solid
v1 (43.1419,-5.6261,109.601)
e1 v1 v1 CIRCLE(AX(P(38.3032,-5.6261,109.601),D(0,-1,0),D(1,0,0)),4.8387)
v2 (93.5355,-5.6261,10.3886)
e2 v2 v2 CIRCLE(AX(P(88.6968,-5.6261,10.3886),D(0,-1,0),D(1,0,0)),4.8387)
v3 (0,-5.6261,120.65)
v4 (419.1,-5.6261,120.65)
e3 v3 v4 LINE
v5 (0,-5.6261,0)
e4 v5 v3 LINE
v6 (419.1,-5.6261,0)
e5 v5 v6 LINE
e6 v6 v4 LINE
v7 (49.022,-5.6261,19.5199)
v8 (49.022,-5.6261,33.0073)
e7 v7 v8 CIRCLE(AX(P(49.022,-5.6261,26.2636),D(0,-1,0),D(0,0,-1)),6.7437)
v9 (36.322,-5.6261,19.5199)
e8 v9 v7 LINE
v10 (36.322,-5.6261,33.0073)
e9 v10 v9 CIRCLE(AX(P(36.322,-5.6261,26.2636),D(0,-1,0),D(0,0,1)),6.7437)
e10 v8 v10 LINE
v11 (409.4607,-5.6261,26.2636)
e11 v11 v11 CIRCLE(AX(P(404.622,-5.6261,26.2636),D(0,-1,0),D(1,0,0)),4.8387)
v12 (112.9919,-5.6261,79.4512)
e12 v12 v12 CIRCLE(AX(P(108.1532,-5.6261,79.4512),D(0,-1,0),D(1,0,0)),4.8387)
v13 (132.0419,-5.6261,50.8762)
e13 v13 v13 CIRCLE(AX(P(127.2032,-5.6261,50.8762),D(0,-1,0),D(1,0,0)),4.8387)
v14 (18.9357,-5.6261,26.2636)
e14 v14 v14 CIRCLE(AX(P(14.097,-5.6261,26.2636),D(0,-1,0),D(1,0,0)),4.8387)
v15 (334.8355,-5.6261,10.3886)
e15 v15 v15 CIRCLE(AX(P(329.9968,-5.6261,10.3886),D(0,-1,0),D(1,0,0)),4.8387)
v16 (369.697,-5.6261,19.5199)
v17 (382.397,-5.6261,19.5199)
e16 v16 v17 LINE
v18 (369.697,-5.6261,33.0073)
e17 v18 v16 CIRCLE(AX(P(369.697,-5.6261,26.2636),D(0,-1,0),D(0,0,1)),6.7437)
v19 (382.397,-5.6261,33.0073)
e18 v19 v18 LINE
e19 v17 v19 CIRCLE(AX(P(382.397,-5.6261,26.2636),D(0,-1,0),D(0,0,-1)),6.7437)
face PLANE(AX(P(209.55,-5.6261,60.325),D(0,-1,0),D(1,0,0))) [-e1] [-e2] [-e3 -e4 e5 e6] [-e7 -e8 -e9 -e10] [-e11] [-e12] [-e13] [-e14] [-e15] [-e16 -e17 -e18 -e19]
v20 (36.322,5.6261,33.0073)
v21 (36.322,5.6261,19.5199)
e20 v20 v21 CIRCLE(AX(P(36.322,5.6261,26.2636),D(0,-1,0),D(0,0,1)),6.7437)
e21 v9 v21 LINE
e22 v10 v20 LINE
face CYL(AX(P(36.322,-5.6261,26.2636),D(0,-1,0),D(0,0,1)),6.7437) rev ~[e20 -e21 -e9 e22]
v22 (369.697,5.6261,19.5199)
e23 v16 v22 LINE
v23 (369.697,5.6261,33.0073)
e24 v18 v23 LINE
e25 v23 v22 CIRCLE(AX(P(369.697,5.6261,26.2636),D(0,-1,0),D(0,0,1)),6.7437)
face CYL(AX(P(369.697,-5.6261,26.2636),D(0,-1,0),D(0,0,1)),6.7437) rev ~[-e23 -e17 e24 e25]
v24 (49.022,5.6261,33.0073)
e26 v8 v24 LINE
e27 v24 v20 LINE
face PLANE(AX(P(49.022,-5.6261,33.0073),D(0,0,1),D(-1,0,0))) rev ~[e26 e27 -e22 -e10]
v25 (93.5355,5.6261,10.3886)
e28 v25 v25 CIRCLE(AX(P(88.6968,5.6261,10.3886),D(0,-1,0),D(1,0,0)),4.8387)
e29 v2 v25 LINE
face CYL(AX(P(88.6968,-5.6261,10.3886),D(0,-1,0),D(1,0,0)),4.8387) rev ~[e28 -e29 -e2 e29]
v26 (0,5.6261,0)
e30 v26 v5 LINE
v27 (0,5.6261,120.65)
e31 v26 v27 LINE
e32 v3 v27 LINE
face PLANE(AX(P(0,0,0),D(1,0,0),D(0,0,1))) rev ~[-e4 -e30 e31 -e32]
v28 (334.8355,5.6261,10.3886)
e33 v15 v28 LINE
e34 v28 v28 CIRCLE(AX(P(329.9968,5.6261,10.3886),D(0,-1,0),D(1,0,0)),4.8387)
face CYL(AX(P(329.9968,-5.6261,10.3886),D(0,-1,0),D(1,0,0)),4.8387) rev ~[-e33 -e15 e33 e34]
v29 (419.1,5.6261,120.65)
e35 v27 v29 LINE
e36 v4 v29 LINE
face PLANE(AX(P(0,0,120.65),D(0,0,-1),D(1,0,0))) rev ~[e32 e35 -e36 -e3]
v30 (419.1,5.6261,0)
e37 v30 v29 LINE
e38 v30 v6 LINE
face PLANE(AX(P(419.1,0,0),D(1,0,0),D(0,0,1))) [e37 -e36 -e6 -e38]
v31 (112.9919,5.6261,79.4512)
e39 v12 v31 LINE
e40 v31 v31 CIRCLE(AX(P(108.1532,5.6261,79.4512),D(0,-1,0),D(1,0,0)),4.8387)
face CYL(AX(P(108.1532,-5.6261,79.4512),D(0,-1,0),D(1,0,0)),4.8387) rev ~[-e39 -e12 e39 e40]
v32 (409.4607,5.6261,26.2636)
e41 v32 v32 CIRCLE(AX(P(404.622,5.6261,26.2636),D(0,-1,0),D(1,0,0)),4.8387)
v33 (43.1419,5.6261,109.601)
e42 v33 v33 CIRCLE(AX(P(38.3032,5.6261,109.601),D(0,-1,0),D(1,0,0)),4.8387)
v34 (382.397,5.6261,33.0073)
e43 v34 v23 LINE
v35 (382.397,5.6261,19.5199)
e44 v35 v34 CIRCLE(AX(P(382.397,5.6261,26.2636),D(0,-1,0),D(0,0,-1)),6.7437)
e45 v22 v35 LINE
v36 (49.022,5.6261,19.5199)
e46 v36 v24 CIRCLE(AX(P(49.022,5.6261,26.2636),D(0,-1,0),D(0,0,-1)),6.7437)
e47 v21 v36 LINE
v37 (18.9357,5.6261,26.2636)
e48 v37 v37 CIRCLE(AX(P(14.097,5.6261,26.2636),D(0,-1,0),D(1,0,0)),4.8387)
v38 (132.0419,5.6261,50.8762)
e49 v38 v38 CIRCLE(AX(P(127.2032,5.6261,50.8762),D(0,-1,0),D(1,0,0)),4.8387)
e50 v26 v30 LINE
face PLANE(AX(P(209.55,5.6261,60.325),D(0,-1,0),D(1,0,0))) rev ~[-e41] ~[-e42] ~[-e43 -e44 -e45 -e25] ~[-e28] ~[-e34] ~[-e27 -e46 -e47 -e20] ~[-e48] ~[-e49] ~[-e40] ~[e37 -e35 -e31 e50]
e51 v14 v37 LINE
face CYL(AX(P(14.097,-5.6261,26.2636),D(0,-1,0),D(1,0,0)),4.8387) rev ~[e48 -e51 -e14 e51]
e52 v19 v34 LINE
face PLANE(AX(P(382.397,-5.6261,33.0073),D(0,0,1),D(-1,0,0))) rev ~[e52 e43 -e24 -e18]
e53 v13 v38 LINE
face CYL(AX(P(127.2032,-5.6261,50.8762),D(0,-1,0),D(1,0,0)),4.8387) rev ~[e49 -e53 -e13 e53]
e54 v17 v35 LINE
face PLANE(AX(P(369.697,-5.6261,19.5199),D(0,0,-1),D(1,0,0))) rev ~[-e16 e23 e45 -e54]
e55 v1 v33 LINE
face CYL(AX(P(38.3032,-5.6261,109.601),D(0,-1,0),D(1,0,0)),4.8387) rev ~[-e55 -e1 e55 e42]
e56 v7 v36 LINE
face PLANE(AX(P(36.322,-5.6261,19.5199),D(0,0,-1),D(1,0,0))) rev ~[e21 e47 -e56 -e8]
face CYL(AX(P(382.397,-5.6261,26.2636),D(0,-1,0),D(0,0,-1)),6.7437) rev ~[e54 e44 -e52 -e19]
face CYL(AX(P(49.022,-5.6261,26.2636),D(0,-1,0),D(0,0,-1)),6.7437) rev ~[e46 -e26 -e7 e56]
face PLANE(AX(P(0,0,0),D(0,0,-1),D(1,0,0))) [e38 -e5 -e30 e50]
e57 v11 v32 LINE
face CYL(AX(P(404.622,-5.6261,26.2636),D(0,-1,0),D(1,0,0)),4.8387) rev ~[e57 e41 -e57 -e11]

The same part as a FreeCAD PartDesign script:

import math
import FreeCAD as App
import Part
import Sketcher
Q = App.Units.Quantity

doc = App.newDocument("Part")
params = doc.addObject("Spreadsheet::Sheet", "Params")
for row, (alias, value) in enumerate([
    ("sketch1_width", "16.5 in"),
    ("sketch1_height", "4.75 in"),
    ("pad1_length", "0.443 in"),
    ("sketch2_diameter", "0.381 in"),
    ("sketch3_width", "0.5 in"),
], start=1):
    params.set(f"A{row}", alias)
    params.set(f"B{row}", "=" + value)
    params.setAlias(f"B{row}", alias)

body = doc.addObject("PartDesign::Body", "Body")

sketch1 = doc.addObject("Sketcher::SketchObject", "Sketch")
body.addObject(sketch1)
sketch1.AttachmentSupport = (doc.XZ_Plane, [""])
sketch1.MapMode = "FlatFace"
sketch1.addGeometry([
    Part.LineSegment(App.Vector(0, 121, 0), App.Vector(0, 0, 0)),
    Part.LineSegment(App.Vector(0, 0, 0), App.Vector(419, 0, 0)),
    Part.LineSegment(App.Vector(419, 0, 0), App.Vector(419, 121, 0)),
    Part.LineSegment(App.Vector(419, 121, 0), App.Vector(0, 121, 0)),
], False)
sketch1.addConstraint([
    Sketcher.Constraint("Coincident", 0, 2, 1, 1),
    Sketcher.Constraint("Coincident", 1, 2, 2, 1),
    Sketcher.Constraint("Coincident", 2, 2, 3, 1),
    Sketcher.Constraint("Coincident", 3, 2, 0, 1),
    Sketcher.Constraint("Vertical", 0),
    Sketcher.Constraint("Horizontal", 1),
    Sketcher.Constraint("Vertical", 2),
    Sketcher.Constraint("Horizontal", 3),
    Sketcher.Constraint("Coincident", 0, 2, -1, 1),
    Sketcher.Constraint("DistanceX", 1, 1, 1, 2, Q("16.5 in")),
    Sketcher.Constraint("DistanceY", 0, 2, 0, 1, Q("4.75 in")),
])
sketch1.setExpression("Constraints[9]", "Params.sketch1_width")
sketch1.setExpression("Constraints[10]", "Params.sketch1_height")
pad1 = doc.addObject("PartDesign::Pad", "Pad")
body.addObject(pad1)
pad1.Profile = sketch1
pad1.setExpression("Length", "Params.pad1_length")
pad1.Midplane = True

sketch2 = doc.addObject("Sketcher::SketchObject", "Sketch001")
body.addObject(sketch2)
sketch2.AttachmentSupport = (doc.XZ_Plane, [""])
sketch2.MapMode = "FlatFace"
sketch2.AttachmentOffset = App.Placement(App.Vector(0, 0, 0.2215 * 25.4), App.Rotation())
sketch2.addGeometry([
    Part.Circle(App.Vector(14.1, 26.3, 0), App.Vector(0, 0, 1), 4.8),
    Part.Circle(App.Vector(38.3, 109.6, 0), App.Vector(0, 0, 1), 4.8),
    Part.Circle(App.Vector(108.2, 79.5, 0), App.Vector(0, 0, 1), 4.8),
    Part.Circle(App.Vector(330, 10.4, 0), App.Vector(0, 0, 1), 4.8),
    Part.Circle(App.Vector(88.7, 10.4, 0), App.Vector(0, 0, 1), 4.8),
    Part.Circle(App.Vector(127.2, 50.9, 0), App.Vector(0, 0, 1), 4.8),
    Part.Circle(App.Vector(404.6, 26.3, 0), App.Vector(0, 0, 1), 4.8),
], False)
sketch2.addConstraint([
    Sketcher.Constraint("Equal", 0, 1),
    Sketcher.Constraint("Equal", 1, 2),
    Sketcher.Constraint("Equal", 2, 3),
    Sketcher.Constraint("Equal", 3, 4),
    Sketcher.Constraint("Equal", 4, 5),
    Sketcher.Constraint("Equal", 5, 6),
    Sketcher.Constraint("Horizontal", 3, 3, 4, 3),
    Sketcher.Constraint("Horizontal", 0, 3, 6, 3),
    Sketcher.Constraint("Diameter", 0, Q("0.381 in")),
    Sketcher.Constraint("DistanceX", 4, 3, 3, 3, Q("9.5 in")),
    Sketcher.Constraint("DistanceX", 1, 3, 5, 3, Q("3.5 in")),
    Sketcher.Constraint("DistanceX", -1, 1, 6, 3, Q("15.93 in")),
    Sketcher.Constraint("DistanceX", 1, 3, 2, 3, Q("2.75 in")),
    Sketcher.Constraint("DistanceX", -1, 1, 0, 3, Q("0.555 in")),
    Sketcher.Constraint("DistanceY", -1, 1, 0, 3, Q("1.034 in")),
    Sketcher.Constraint("DistanceX", -1, 1, 1, 3, Q("1.508 in")),
    Sketcher.Constraint("DistanceY", -1, 1, 1, 3, Q("4.315 in")),
    Sketcher.Constraint("DistanceY", -1, 1, 2, 3, Q("3.128 in")),
    Sketcher.Constraint("DistanceX", -1, 1, 3, 3, Q("12.992 in")),
    Sketcher.Constraint("DistanceY", -1, 1, 3, 3, Q("0.409 in")),
    Sketcher.Constraint("DistanceY", -1, 1, 5, 3, Q("2.003 in")),
])
sketch2.setExpression("Constraints[8]", "Params.sketch2_diameter")
pocket1 = doc.addObject("PartDesign::Pocket", "Pocket")
body.addObject(pocket1)
pocket1.Profile = sketch2
pocket1.Type = "ThroughAll"

sketch3 = doc.addObject("Sketcher::SketchObject", "Sketch002")
body.addObject(sketch3)
sketch3.AttachmentSupport = (doc.XZ_Plane, [""])
sketch3.MapMode = "FlatFace"
sketch3.AttachmentOffset = App.Placement(App.Vector(0, 0, 0.2215 * 25.4), App.Rotation())
sketch3.addGeometry([
    Part.LineSegment(App.Vector(49, 33, 0), App.Vector(36, 33, 0)),
    Part.ArcOfCircle(Part.Circle(App.Vector(36, 26, 0), App.Vector(0, 0, 1), 7), math.radians(90), math.radians(270)),
    Part.LineSegment(App.Vector(36, 20, 0), App.Vector(49, 20, 0)),
    Part.ArcOfCircle(Part.Circle(App.Vector(49, 26, 0), App.Vector(0, 0, 1), 7), math.radians(-90), math.radians(90)),
    Part.LineSegment(App.Vector(382, 33, 0), App.Vector(370, 33, 0)),
    Part.ArcOfCircle(Part.Circle(App.Vector(370, 26, 0), App.Vector(0, 0, 1), 7), math.radians(90), math.radians(270)),
    Part.LineSegment(App.Vector(370, 20, 0), App.Vector(382, 20, 0)),
    Part.ArcOfCircle(Part.Circle(App.Vector(382, 26, 0), App.Vector(0, 0, 1), 7), math.radians(-90), math.radians(90)),
], False)
sketch3.addConstraint([
    Sketcher.Constraint("Tangent", 0, 2, 1, 1),
    Sketcher.Constraint("Tangent", 1, 2, 2, 1),
    Sketcher.Constraint("Tangent", 2, 2, 3, 1),
    Sketcher.Constraint("Tangent", 3, 2, 0, 1),
    Sketcher.Constraint("Tangent", 4, 2, 5, 1),
    Sketcher.Constraint("Tangent", 5, 2, 6, 1),
    Sketcher.Constraint("Tangent", 6, 2, 7, 1),
    Sketcher.Constraint("Tangent", 7, 2, 4, 1),
    Sketcher.Constraint("Horizontal", 0),
    Sketcher.Constraint("Horizontal", 2),
    Sketcher.Constraint("Horizontal", 4),
    Sketcher.Constraint("Horizontal", 6),
    Sketcher.Constraint("Equal", 3, 5),
    Sketcher.Constraint("Horizontal", 3, 3, 5, 3),
    Sketcher.Constraint("Equal", 2, 4),
    Sketcher.Constraint("DistanceX", 0, 2, 0, 1, Q("0.5 in")),
    Sketcher.Constraint("Radius", 1, Q("0.2655 in")),
    Sketcher.Constraint("DistanceX", -1, 1, 1, 3, Q("1.43 in")),
    Sketcher.Constraint("DistanceY", -1, 1, 1, 3, Q("1.034 in")),
    Sketcher.Constraint("DistanceX", -1, 1, 5, 3, Q("14.555 in")),
])
sketch3.setExpression("Constraints[15]", "Params.sketch3_width")
pocket2 = doc.addObject("PartDesign::Pocket", "Pocket001")
body.addObject(pocket2)
pocket2.Profile = sketch3
pocket2.Type = "ThroughAll"

doc.recompute()
